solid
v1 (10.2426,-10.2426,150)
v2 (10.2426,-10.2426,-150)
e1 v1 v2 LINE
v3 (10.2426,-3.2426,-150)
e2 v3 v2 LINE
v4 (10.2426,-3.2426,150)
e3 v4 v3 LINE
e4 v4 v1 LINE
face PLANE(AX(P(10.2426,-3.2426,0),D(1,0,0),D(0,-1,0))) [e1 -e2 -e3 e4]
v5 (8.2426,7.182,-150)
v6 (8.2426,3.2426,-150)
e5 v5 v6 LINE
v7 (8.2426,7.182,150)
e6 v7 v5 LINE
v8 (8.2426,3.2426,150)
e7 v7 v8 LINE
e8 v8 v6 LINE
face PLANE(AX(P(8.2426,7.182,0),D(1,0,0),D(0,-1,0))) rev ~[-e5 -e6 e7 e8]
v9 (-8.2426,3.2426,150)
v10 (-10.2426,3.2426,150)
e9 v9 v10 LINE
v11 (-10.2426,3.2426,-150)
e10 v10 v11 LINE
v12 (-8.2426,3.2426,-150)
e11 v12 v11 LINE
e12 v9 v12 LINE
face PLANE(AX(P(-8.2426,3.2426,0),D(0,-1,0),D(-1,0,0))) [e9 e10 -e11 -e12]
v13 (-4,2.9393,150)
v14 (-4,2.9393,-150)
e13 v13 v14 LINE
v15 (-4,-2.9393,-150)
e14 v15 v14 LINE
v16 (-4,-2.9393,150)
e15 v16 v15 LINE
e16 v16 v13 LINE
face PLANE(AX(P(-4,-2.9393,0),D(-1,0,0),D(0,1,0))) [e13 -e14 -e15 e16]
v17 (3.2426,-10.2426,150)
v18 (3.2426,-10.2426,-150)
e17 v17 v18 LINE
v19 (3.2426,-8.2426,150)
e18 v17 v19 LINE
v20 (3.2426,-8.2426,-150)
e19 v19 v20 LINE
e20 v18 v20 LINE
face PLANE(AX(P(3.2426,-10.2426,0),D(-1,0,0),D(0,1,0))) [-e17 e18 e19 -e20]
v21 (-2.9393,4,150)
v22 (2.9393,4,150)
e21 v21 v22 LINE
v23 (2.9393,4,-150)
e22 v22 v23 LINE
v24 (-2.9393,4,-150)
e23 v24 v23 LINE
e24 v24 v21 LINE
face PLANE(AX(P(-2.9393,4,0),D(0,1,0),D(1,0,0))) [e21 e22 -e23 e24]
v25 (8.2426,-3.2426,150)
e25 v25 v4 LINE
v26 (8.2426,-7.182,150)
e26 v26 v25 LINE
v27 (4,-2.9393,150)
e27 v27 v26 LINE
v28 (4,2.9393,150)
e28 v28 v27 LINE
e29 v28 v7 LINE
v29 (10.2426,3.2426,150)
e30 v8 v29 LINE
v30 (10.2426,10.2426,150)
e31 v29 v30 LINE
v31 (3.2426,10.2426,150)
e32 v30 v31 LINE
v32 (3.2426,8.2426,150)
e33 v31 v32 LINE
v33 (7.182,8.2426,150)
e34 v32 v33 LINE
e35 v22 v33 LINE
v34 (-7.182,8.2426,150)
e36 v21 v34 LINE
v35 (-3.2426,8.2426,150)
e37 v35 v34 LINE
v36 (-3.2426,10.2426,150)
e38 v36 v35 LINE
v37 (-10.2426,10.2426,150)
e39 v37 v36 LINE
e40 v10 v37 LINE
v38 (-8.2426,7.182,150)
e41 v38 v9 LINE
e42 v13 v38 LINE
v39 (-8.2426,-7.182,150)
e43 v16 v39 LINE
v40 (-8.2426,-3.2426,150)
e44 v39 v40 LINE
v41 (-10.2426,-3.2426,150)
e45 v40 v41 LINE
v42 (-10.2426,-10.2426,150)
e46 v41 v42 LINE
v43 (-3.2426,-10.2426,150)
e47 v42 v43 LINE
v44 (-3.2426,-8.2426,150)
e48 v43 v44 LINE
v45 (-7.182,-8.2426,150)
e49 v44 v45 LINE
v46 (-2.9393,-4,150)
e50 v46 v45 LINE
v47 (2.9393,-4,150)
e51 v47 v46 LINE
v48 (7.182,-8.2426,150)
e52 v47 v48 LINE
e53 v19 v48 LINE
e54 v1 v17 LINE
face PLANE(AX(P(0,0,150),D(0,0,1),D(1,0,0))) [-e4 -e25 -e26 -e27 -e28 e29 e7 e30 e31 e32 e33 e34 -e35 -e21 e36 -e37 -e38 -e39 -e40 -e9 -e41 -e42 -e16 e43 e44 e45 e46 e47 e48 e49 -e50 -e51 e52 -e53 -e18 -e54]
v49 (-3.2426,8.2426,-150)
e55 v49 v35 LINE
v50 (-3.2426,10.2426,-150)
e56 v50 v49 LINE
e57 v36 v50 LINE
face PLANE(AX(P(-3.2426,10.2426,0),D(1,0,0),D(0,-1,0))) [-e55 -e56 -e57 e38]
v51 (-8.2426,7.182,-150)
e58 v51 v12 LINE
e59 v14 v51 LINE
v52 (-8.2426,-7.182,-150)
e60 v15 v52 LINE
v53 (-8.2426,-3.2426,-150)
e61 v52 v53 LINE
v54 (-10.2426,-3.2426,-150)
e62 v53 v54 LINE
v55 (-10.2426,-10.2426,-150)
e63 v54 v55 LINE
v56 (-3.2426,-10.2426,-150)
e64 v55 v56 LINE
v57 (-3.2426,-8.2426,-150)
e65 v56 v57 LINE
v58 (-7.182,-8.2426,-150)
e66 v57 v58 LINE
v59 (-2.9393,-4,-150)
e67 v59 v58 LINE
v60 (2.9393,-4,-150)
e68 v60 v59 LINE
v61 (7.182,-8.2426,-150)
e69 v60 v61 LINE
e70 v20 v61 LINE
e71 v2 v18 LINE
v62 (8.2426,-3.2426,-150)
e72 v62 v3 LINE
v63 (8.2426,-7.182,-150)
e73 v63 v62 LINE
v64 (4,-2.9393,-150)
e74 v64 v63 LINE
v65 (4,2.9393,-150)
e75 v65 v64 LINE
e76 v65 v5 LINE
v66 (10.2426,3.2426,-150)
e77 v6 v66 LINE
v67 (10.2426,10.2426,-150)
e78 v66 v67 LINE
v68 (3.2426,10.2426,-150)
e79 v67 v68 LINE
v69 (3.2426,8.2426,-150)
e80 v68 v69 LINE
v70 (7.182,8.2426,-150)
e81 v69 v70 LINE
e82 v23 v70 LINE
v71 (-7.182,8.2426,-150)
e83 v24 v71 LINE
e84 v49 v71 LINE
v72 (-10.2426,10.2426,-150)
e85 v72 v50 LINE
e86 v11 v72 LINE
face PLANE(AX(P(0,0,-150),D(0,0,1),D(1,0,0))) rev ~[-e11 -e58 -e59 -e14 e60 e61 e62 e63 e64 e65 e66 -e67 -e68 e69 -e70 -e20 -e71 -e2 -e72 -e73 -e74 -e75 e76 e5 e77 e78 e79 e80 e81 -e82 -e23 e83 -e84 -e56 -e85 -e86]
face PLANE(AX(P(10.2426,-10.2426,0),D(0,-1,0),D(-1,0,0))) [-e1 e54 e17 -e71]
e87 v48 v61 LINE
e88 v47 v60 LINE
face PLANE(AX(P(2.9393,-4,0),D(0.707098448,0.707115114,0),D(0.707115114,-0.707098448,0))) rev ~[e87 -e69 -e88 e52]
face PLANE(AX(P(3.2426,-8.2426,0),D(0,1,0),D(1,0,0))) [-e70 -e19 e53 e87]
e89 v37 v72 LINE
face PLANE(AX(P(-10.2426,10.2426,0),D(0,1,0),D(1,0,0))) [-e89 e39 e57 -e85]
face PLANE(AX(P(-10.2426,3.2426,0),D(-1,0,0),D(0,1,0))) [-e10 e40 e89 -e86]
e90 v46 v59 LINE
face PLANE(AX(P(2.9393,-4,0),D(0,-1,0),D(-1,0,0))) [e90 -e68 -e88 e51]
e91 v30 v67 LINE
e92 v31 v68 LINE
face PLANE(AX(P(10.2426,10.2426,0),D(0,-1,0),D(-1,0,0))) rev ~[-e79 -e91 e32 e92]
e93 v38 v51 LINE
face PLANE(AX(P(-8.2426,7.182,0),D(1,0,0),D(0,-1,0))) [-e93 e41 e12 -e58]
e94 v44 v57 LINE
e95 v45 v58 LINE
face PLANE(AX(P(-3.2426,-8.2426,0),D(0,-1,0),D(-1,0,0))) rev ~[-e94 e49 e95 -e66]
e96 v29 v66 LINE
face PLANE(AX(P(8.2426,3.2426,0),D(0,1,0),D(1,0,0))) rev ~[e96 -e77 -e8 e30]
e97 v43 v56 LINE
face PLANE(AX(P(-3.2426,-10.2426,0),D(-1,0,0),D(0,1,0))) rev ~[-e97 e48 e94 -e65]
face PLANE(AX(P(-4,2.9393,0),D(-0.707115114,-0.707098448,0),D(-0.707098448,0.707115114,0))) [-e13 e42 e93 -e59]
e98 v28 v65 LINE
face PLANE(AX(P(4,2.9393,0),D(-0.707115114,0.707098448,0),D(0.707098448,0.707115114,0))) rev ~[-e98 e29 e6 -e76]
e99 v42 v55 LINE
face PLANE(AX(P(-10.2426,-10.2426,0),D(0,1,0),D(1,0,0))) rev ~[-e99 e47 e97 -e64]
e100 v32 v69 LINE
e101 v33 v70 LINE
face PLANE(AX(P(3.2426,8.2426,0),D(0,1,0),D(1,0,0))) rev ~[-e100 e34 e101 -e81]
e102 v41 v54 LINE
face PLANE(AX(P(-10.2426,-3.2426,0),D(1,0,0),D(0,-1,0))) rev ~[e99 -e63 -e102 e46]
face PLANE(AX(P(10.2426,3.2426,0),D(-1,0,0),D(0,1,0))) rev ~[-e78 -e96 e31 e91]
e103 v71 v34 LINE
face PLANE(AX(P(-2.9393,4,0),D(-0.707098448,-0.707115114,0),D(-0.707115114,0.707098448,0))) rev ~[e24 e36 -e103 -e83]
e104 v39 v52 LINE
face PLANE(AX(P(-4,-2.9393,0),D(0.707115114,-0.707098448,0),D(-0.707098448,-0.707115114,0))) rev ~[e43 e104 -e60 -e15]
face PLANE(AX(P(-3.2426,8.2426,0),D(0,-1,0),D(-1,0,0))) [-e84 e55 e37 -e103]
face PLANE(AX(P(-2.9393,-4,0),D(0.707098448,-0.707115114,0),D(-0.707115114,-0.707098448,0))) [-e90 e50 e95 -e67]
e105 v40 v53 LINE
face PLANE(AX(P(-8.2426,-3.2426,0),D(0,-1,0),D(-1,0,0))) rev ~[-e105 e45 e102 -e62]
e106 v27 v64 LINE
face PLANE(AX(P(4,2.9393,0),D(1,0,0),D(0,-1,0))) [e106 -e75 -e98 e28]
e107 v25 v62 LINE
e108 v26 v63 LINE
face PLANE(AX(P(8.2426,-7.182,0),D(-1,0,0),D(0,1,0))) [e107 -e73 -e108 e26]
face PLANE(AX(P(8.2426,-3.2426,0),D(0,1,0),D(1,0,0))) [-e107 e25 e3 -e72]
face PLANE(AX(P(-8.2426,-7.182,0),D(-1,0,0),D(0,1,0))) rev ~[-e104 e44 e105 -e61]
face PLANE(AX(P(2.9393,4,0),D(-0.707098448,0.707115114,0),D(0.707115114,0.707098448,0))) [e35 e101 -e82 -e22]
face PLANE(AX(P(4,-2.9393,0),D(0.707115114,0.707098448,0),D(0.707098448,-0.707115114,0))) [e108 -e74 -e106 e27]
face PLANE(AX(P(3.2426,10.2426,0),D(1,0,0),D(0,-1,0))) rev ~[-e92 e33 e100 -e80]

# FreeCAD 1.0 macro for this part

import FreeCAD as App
import Part
import Sketcher
Q = App.Units.Quantity


def add_polygon(sketch, points):
    """Adds a closed chain of lines whose ends are joined by coincident constraints."""
    first, n = sketch.GeometryCount, len(points)
    for a, b in zip(points, points[1:] + points[:1]):
        sketch.addGeometry(Part.LineSegment(App.Vector(*a, 0), App.Vector(*b, 0)), False)
    for i in range(n):
        sketch.addConstraint(Sketcher.Constraint("Coincident", first + i, 2, first + (i + 1) % n, 1))

doc = App.newDocument("Part")
params = doc.addObject("Spreadsheet::Sheet", "Params")
for row, (alias, value) in enumerate([
    ("sketch1_width", "7 mm"),
    ("sketch1_width2", "2 mm"),
    ("sketch1_length", "6 mm"),
    ("pad1_length", "300 mm"),
], start=1):
    params.set(f"A{row}", alias)
    params.set(f"B{row}", "=" + value)
    params.setAlias(f"B{row}", alias)

body = doc.addObject("PartDesign::Body", "Body")

# Sketch on XY plane
sketch1 = doc.addObject("Sketcher::SketchObject", "Sketch")
body.addObject(sketch1)
sketch1.AttachmentSupport = (doc.XY_Plane, [""])
sketch1.MapMode = "FlatFace"
add_polygon(sketch1, [(2.9, 4), (-2.9, 4), (-7.2, 8.2), (-3.2, 8.2), (-3.2, 10.2), (-10.2, 10.2), (-10.2, 3.2), (-8.2, 3.2), (-8.2, 7.2), (-4, 2.9), (-4, -2.9), (-8.2, -7.2), (-8.2, -3.2), (-10.2, -3.2), (-10.2, -10.2), (-3.2, -10.2), (-3.2, -8.2), (-7.2, -8.2), (-2.9, -4), (2.9, -4), (7.2, -8.2), (3.2, -8.2), (3.2, -10.2), (10.2, -10.2), (10.2, -3.2), (8.2, -3.2), (8.2, -7.2), (4, -2.9), (4, 2.9), (8.2, 7.2), (8.2, 3.2), (10.2, 3.2), (10.2, 10.2), (3.2, 10.2), (3.2, 8.2), (7.2, 8.2)])  # lines 0-35
sketch1.addConstraint([
    Sketcher.Constraint("Horizontal", 0),
    Sketcher.Constraint("Horizontal", 2),
    Sketcher.Constraint("Vertical", 3),
    Sketcher.Constraint("Horizontal", 4),
    Sketcher.Constraint("Vertical", 5),
    Sketcher.Constraint("Horizontal", 6),
    Sketcher.Constraint("Vertical", 7),
    Sketcher.Constraint("Vertical", 9),
    Sketcher.Constraint("Vertical", 11),
    Sketcher.Constraint("Horizontal", 12),
    Sketcher.Constraint("Vertical", 13),
    Sketcher.Constraint("Horizontal", 14),
    Sketcher.Constraint("Vertical", 15),
    Sketcher.Constraint("Horizontal", 16),
    Sketcher.Constraint("Horizontal", 18),
    Sketcher.Constraint("Horizontal", 20),
    Sketcher.Constraint("Vertical", 21),
    Sketcher.Constraint("Horizontal", 22),
    Sketcher.Constraint("Vertical", 23),
    Sketcher.Constraint("Horizontal", 24),
    Sketcher.Constraint("Vertical", 25),
    Sketcher.Constraint("Vertical", 27),
    Sketcher.Constraint("Vertical", 29),
    Sketcher.Constraint("Horizontal", 30),
    Sketcher.Constraint("Vertical", 31),
    Sketcher.Constraint("Horizontal", 32),
    Sketcher.Constraint("Vertical", 33),
    Sketcher.Constraint("Horizontal", 34),
    Sketcher.Constraint("Symmetric", 0, 2, 18, 2, -1, 1),
    Sketcher.Constraint("Symmetric", 1, 2, 19, 2, -1, 1),
    Sketcher.Constraint("Symmetric", 3, 2, 21, 2, -1, 1),
    Sketcher.Constraint("Symmetric", 5, 2, 23, 2, -1, 1),
    Sketcher.Constraint("Symmetric", 7, 2, 25, 2, -1, 1),
    Sketcher.Constraint("Symmetric", 8, 2, 26, 2, -1, 1),
    Sketcher.Constraint("Symmetric", 10, 2, 28, 2, -1, 1),
    Sketcher.Constraint("Symmetric", 12, 2, 30, 2, -1, 1),
    Sketcher.Constraint("Symmetric", 14, 2, 32, 2, -1, 1),
    Sketcher.Constraint("Symmetric", 16, 2, 34, 2, -1, 1),
    Sketcher.Constraint("Symmetric", 16, 2, 19, 2, -2),
    Sketcher.Constraint("Symmetric", 14, 2, 21, 2, -2),
    Sketcher.Constraint("Symmetric", 12, 2, 23, 2, -2),
    Sketcher.Constraint("Symmetric", 10, 2, 25, 2, -2),
    Sketcher.Constraint("Parallel", 1, 8),
    Sketcher.Constraint("Perpendicular", 8, 10),
    Sketcher.Constraint("Parallel", 10, 17),
    Sketcher.Constraint("Perpendicular", 26, 28),
    Sketcher.Constraint("Parallel", 28, 35),
    Sketcher.Constraint("Horizontal", 9, 2, 26, 2),
    Sketcher.Constraint("Equal", 30, 3),
    Sketcher.Constraint("Equal", 32, 5),
    Sketcher.Constraint("Equal", 34, 7),
    Sketcher.Constraint("Equal", 18, 9),
    Sketcher.Constraint("Equal", 1, 8),
    Sketcher.Constraint("DistanceX", 8, 2, 27, 2, Q("8 mm")),
    Sketcher.Constraint("DistanceX", 4, 2, 4, 1, Q("7 mm")),
    Sketcher.Constraint("DistanceX", 6, 1, 6, 2, Q("2 mm")),
    Sketcher.Constraint("Distance", 1, Q("6 mm")),
    Sketcher.Constraint("DistanceX", 0, 2, 0, 1, Q("5.8786 mm")),
])
sketch1.setExpression("Constraints[90]", "Params.sketch1_width")
sketch1.setExpression("Constraints[91]", "Params.sketch1_width2")
sketch1.setExpression("Constraints[92]", "Params.sketch1_length")
pad1 = doc.addObject("PartDesign::Pad", "Pad")
body.addObject(pad1)
pad1.Profile = sketch1
pad1.setExpression("Length", "Params.pad1_length")
pad1.Midplane = True

doc.recompute()
